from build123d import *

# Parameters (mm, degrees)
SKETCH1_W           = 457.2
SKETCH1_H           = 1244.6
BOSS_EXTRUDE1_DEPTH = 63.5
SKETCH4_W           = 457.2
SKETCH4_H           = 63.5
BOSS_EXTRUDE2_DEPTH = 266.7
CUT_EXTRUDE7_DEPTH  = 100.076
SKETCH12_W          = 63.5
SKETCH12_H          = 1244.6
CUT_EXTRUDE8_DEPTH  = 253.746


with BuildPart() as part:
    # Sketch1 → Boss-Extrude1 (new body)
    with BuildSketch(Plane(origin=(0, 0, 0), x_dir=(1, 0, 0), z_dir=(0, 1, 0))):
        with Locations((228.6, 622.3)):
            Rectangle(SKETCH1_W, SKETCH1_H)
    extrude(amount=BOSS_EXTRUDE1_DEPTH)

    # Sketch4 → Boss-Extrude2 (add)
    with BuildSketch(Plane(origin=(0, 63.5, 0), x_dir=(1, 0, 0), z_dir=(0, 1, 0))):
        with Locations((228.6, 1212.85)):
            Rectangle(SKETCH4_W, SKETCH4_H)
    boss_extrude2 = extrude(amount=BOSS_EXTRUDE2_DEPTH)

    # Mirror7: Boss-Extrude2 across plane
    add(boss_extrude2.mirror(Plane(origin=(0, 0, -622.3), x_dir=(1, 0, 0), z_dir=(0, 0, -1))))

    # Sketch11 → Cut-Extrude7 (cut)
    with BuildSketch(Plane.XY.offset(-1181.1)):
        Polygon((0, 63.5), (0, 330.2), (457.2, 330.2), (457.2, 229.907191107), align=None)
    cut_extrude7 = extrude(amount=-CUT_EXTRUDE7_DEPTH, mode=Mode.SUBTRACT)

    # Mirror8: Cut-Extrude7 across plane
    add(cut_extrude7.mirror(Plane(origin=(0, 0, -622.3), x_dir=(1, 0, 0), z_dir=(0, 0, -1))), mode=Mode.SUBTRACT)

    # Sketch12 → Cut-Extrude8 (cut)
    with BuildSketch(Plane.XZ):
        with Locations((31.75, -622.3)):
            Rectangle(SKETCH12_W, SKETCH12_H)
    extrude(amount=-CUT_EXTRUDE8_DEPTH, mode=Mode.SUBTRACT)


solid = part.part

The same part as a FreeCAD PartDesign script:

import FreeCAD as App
import Part
import Sketcher
Q = App.Units.Quantity


def add_polygon(sketch, points):
    """Adds a closed chain of lines whose ends are joined by coincident constraints."""
    first, n = sketch.GeometryCount, len(points)
    for a, b in zip(points, points[1:] + points[:1]):
        sketch.addGeometry(Part.LineSegment(App.Vector(*a, 0), App.Vector(*b, 0)), False)
    for i in range(n):
        sketch.addConstraint(Sketcher.Constraint("Coincident", first + i, 2, first + (i + 1) % n, 1))

doc = App.newDocument("Part")
body = doc.addObject("PartDesign::Body", "Body")

# Sketch on XZ plane
sketch1 = doc.addObject("Sketcher::SketchObject", "Sketch")
body.addObject(sketch1)
sketch1.AttachmentSupport = (doc.XZ_Plane, [""])
sketch1.MapMode = "FlatFace"
add_polygon(sketch1, [(0, -1244.6), (0, 0), (457.2, 0), (457.2, -1244.6)])  # lines 0-3
sketch1.addConstraint(Sketcher.Constraint("Vertical", 0))
sketch1.addConstraint(Sketcher.Constraint("Horizontal", 1))
sketch1.addConstraint(Sketcher.Constraint("Vertical", 2))
sketch1.addConstraint(Sketcher.Constraint("Horizontal", 3))
sketch1.addConstraint(Sketcher.Constraint("Coincident", 0, 2, -1, 1))
sketch1.addConstraint(Sketcher.Constraint("DistanceX", 1, 1, 1, 2, Q("18 in")))
sketch1.addConstraint(Sketcher.Constraint("DistanceY", 0, 1, 0, 2, Q("49 in")))
pad1 = doc.addObject("PartDesign::Pad", "Pad")
body.addObject(pad1)
pad1.Profile = sketch1
pad1.Length = Q("2.5 in")
pad1.Reversed = True

# Sketch on XZ plane
sketch2 = doc.addObject("Sketcher::SketchObject", "Sketch001")
body.addObject(sketch2)
sketch2.AttachmentSupport = (doc.XZ_Plane, [""])
sketch2.MapMode = "FlatFace"
sketch2.AttachmentOffset = App.Placement(App.Vector(0, 0, -2.5 * 25.4), App.Rotation())
add_polygon(sketch2, [(0, -1244.6), (0, -1181.1), (457.2, -1181.1), (457.2, -1244.6)])  # lines 0-3
sketch2.addConstraint(Sketcher.Constraint("Vertical", 0))
sketch2.addConstraint(Sketcher.Constraint("Horizontal", 1))
sketch2.addConstraint(Sketcher.Constraint("Vertical", 2))
sketch2.addConstraint(Sketcher.Constraint("Horizontal", 3))
sketch2.addConstraint(Sketcher.Constraint("PointOnObject", 0, 2, -2))
sketch2.addConstraint(Sketcher.Constraint("DistanceX", 1, 1, 1, 2, Q("18 in")))
sketch2.addConstraint(Sketcher.Constraint("DistanceY", 0, 1, 0, 2, Q("2.5 in")))
sketch2.addConstraint(Sketcher.Constraint("DistanceY", 2, 2, -1, 1, Q("49 in")))
pad2 = doc.addObject("PartDesign::Pad", "Pad001")
body.addObject(pad2)
pad2.Profile = sketch2
pad2.Length = Q("10.5 in")
pad2.Reversed = True
doc.recompute()

datumplane = doc.addObject("PartDesign::Plane", "DatumPlane")
body.addObject(datumplane)
datumplane.AttachmentSupport = (doc.XY_Plane, [""])
datumplane.MapMode = "FlatFace"
datumplane.AttachmentOffset = App.Placement(App.Vector(0, 0, -24.5 * 25.4), App.Rotation())
mirrored = doc.addObject("PartDesign::Mirrored", "Mirrored")
body.addObject(mirrored)
mirrored.Originals = [pad2]
mirrored.MirrorPlane = (datumplane, [""])
body.Tip = mirrored

# Sketch on XY plane
sketch3 = doc.addObject("Sketcher::SketchObject", "Sketch002")
body.addObject(sketch3)
sketch3.AttachmentSupport = (doc.XY_Plane, [""])
sketch3.MapMode = "FlatFace"
sketch3.AttachmentOffset = App.Placement(App.Vector(0, 0, -46.5 * 25.4), App.Rotation())
add_polygon(sketch3, [(0, 330.2), (0, 63.5), (457.2, 229.907191), (457.2, 330.2)])  # lines 0-3
sketch3.addConstraint(Sketcher.Constraint("Vertical", 0))
sketch3.addConstraint(Sketcher.Constraint("Vertical", 2))
sketch3.addConstraint(Sketcher.Constraint("Horizontal", 3))
sketch3.addConstraint(Sketcher.Constraint("PointOnObject", 0, 2, -2))
sketch3.addConstraint(Sketcher.Constraint("DistanceX", 3, 2, 3, 1, Q("18 in")))
sketch3.addConstraint(Sketcher.Constraint("DistanceY", 0, 2, 0, 1, Q("10.5 in")))
sketch3.addConstraint(Sketcher.Constraint("DistanceY", -1, 1, 2, 2, Q("13 in")))
sketch3.addConstraint(Sketcher.Constraint("Angle", 1, Q("20 deg")))
pocket1 = doc.addObject("PartDesign::Pocket", "Pocket")
body.addObject(pocket1)
pocket1.Profile = sketch3
pocket1.Length = Q("3.94 in")
doc.recompute()

datumplane2 = doc.addObject("PartDesign::Plane", "DatumPlane001")
body.addObject(datumplane2)
datumplane2.AttachmentSupport = (doc.XY_Plane, [""])
datumplane2.MapMode = "FlatFace"
datumplane2.AttachmentOffset = App.Placement(App.Vector(0, 0, -24.5 * 25.4), App.Rotation())
mirrored2 = doc.addObject("PartDesign::Mirrored", "Mirrored001")
body.addObject(mirrored2)
mirrored2.Originals = [pocket1]
mirrored2.MirrorPlane = (datumplane2, [""])
body.Tip = mirrored2

# Sketch on XZ plane
sketch4 = doc.addObject("Sketcher::SketchObject", "Sketch003")
body.addObject(sketch4)
sketch4.AttachmentSupport = (doc.XZ_Plane, [""])
sketch4.MapMode = "FlatFace"
add_polygon(sketch4, [(0, 0), (0, -1244.6), (63.5, -1244.6), (63.5, 0)])  # lines 0-3
sketch4.addConstraint(Sketcher.Constraint("Vertical", 0))
sketch4.addConstraint(Sketcher.Constraint("Horizontal", 1))
sketch4.addConstraint(Sketcher.Constraint("Vertical", 2))
sketch4.addConstraint(Sketcher.Constraint("Horizontal", 3))
sketch4.addConstraint(Sketcher.Constraint("Coincident", 3, 2, -1, 1))
sketch4.addConstraint(Sketcher.Constraint("DistanceY", 0, 2, 0, 1, Q("49 in")))
sketch4.addConstraint(Sketcher.Constraint("DistanceX", 1, 1, 1, 2, Q("2.5 in")))
pocket2 = doc.addObject("PartDesign::Pocket", "Pocket001")
body.addObject(pocket2)
pocket2.Profile = sketch4
pocket2.Length = Q("9.99 in")

doc.recompute()
